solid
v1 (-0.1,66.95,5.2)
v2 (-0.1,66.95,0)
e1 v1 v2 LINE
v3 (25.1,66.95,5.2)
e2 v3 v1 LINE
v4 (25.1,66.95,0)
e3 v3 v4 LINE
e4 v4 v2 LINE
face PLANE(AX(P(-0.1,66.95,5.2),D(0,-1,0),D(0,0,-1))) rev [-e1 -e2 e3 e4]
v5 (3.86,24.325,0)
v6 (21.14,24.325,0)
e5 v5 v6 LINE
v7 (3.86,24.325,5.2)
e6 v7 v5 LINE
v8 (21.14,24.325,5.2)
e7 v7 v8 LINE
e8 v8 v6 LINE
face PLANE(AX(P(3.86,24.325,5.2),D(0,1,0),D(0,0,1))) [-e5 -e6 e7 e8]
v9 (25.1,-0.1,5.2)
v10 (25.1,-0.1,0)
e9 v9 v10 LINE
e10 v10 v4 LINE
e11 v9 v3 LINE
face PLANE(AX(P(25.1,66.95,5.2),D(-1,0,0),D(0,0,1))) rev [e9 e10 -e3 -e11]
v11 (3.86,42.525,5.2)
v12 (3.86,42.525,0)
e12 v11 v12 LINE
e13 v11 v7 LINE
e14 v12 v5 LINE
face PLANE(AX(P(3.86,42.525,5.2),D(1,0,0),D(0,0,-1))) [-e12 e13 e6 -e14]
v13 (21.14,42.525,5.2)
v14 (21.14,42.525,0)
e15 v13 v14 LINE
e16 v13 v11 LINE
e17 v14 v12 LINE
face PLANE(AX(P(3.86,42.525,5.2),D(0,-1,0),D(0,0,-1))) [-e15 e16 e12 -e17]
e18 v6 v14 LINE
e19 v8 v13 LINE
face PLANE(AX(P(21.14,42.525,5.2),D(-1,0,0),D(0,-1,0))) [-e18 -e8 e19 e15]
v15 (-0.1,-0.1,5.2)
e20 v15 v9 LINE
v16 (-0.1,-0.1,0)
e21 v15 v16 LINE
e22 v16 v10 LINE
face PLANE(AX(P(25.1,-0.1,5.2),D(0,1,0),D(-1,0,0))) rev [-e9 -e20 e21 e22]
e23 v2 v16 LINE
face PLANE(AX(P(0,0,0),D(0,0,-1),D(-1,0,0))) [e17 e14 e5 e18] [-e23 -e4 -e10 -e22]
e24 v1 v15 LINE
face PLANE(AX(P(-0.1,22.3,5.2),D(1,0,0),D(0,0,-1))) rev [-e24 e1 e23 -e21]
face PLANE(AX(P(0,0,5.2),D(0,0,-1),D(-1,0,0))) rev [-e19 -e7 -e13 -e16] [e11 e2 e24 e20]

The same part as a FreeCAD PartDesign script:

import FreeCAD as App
import Part
import Sketcher
from FreeCAD import Vector


def add_polygon(sketch, points):
    """Adds a closed chain of lines whose ends are joined by coincident constraints."""
    first, n = sketch.GeometryCount, len(points)
    for a, b in zip(points, points[1:] + points[:1]):
        sketch.addGeometry(Part.LineSegment(App.Vector(*a, 0), App.Vector(*b, 0)), False)
    for i in range(n):
        sketch.addConstraint(Sketcher.Constraint("Coincident", first + i, 2, first + (i + 1) % n, 1))

doc = App.newDocument("Part")
body = doc.addObject("PartDesign::Body", "Body")

sketch1 = body.newObject("Sketcher::SketchObject", "Sketch")
sketch1.AttachmentSupport = (doc.getObject("XY_Plane"), [""])
sketch1.MapMode = "FlatFace"
add_polygon(sketch1, [(25, 67), (0, 67), (0, 0), (25, 0)])
add_polygon(sketch1, [(4, 24), (4, 43), (21, 43), (21, 24)])
sketch1.addConstraint([
    Sketcher.Constraint("Horizontal", 0),
    Sketcher.Constraint("Vertical", 1),
    Sketcher.Constraint("Horizontal", 2),
    Sketcher.Constraint("Vertical", 3),
    Sketcher.Constraint("Vertical", 4),
    Sketcher.Constraint("Horizontal", 5),
    Sketcher.Constraint("Vertical", 6),
    Sketcher.Constraint("Horizontal", 7),
    Sketcher.Constraint("DistanceX", 0, 2, 0, 1, 25.2),
    Sketcher.Constraint("DistanceY", 4, 1, 4, 2, 18.2),
    Sketcher.Constraint("DistanceX", 5, 1, 5, 2, 17.28),
    Sketcher.Constraint("DistanceY", 1, 2, 1, 1, 67.05),
    Sketcher.Constraint("DistanceX", 0, 2, -1, 1, 0.1),
    Sketcher.Constraint("DistanceY", 1, 2, -1, 1, 0.1),
    Sketcher.Constraint("DistanceX", -1, 1, 4, 2, 3.86),
    Sketcher.Constraint("DistanceY", -1, 1, 4, 2, 42.525),
])
pad1 = body.newObject("PartDesign::Pad", "Pad")
pad1.Profile = sketch1
pad1.Length = 5.2

doc.recompute()
